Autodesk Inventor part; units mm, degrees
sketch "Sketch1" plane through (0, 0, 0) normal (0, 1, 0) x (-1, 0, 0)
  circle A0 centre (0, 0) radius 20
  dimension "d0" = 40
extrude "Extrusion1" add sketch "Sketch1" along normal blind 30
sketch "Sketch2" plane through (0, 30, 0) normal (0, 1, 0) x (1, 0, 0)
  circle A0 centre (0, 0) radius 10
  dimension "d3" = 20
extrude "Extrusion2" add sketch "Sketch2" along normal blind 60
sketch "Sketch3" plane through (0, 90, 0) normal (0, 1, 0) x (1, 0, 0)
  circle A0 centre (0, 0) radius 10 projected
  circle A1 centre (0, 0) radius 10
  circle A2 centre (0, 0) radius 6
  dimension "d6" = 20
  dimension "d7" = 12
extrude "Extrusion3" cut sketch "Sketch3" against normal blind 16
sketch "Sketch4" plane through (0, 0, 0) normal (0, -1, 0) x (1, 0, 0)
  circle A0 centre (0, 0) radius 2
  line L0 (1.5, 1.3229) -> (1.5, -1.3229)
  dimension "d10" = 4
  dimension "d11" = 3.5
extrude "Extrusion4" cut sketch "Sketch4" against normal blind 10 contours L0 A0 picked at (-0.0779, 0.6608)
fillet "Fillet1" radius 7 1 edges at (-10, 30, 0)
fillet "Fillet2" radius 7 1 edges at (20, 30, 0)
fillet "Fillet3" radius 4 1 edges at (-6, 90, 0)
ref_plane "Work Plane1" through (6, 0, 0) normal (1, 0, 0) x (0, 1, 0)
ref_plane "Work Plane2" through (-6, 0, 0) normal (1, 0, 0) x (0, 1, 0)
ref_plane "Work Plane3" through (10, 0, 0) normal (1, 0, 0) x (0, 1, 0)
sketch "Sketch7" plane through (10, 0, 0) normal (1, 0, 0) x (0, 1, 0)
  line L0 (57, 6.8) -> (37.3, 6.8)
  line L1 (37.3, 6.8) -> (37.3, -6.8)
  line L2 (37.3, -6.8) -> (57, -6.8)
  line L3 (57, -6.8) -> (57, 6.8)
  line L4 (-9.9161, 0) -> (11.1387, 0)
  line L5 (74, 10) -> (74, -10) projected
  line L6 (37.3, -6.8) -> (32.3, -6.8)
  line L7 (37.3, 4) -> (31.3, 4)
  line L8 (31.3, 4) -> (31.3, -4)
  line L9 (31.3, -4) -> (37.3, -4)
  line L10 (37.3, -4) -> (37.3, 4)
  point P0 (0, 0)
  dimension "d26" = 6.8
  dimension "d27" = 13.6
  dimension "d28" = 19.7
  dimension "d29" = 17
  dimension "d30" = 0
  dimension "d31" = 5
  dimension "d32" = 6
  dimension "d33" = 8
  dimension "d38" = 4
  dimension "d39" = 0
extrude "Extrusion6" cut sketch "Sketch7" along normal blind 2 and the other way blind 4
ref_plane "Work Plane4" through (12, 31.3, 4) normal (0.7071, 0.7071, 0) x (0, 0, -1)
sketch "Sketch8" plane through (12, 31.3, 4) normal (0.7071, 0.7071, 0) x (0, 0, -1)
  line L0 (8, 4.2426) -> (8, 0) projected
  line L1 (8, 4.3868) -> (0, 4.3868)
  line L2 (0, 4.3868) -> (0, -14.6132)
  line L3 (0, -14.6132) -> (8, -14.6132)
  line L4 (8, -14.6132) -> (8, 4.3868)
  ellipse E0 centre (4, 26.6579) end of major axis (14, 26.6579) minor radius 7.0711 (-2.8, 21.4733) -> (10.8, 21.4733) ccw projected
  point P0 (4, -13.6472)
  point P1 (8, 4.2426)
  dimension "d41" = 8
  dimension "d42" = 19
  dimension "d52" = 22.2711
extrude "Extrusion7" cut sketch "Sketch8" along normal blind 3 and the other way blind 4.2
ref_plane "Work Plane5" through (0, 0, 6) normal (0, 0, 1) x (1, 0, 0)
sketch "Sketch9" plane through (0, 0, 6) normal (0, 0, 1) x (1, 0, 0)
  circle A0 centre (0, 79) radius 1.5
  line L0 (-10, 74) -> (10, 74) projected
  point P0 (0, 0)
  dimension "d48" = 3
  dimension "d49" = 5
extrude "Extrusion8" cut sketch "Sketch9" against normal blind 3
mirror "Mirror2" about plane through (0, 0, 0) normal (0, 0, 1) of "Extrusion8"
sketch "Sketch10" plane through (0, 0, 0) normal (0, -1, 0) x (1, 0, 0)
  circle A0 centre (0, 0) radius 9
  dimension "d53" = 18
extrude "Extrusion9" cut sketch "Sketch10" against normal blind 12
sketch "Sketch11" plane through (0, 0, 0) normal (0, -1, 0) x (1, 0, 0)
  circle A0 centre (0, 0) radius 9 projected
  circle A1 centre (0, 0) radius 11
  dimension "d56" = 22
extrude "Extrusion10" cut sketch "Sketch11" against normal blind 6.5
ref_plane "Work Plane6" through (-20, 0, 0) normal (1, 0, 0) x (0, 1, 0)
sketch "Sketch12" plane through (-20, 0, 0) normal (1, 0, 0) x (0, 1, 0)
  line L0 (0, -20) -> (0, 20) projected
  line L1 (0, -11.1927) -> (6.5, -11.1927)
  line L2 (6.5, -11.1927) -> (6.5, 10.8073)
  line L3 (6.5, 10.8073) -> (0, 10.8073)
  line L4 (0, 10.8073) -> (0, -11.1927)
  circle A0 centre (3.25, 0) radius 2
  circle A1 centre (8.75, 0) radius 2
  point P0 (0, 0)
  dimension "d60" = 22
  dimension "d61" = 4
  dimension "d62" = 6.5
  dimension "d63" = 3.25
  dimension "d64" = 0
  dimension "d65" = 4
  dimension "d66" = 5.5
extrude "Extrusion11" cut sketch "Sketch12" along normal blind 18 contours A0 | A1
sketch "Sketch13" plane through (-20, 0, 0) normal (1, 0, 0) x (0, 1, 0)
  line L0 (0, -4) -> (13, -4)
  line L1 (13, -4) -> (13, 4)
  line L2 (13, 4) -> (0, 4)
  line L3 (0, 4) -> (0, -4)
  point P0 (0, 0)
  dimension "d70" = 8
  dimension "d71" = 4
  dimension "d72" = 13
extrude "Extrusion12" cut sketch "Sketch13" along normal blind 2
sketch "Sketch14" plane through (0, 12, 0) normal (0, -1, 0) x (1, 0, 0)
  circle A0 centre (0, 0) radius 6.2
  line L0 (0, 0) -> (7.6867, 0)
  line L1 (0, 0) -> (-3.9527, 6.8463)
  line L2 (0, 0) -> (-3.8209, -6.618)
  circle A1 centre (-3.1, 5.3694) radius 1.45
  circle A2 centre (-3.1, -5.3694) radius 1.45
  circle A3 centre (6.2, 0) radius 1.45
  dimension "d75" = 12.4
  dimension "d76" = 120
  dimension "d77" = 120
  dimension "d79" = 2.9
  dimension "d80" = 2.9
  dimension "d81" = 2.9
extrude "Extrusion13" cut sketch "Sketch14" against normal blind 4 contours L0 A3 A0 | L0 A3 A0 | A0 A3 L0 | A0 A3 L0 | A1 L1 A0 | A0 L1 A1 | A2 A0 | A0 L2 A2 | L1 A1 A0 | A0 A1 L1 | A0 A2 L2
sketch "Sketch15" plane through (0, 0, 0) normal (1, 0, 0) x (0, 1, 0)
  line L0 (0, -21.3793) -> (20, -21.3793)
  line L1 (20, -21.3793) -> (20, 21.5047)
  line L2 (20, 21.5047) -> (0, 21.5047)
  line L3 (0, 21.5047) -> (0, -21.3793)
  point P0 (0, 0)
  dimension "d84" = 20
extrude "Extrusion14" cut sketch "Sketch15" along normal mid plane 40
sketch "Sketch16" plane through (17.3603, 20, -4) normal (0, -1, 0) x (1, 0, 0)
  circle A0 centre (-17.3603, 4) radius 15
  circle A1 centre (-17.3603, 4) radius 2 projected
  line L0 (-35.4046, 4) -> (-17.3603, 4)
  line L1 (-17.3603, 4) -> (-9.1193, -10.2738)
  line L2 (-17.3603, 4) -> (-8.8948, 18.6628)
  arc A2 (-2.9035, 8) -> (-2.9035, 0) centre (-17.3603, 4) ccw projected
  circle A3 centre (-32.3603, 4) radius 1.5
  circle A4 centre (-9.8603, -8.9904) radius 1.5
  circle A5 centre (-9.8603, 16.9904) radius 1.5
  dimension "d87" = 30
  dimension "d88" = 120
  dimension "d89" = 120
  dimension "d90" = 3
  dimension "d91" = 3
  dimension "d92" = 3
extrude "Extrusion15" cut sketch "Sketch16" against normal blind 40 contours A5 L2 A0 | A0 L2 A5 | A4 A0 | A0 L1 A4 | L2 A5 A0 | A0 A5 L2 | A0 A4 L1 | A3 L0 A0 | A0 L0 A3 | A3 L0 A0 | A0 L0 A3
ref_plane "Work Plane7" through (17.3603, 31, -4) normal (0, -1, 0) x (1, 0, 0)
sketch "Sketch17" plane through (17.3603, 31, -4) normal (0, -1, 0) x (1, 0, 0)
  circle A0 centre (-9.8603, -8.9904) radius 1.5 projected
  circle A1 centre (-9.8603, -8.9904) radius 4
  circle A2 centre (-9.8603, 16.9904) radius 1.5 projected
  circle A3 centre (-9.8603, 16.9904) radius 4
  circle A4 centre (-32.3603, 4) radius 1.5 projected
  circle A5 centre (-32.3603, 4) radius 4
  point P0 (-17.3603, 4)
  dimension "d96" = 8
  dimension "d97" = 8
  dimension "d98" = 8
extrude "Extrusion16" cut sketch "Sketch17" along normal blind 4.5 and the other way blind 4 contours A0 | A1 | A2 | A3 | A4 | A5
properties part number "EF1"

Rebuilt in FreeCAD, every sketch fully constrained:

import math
import FreeCAD as App
import Part
import Sketcher
Q = App.Units.Quantity


def edges_at(feature, points):
    """Names of the edges that pass closest to the given points."""
    edges = feature.Shape.Edges
    near = lambda p: min(range(len(edges)), key=lambda i: edges[i].distToShape(Part.Vertex(*p))[0])
    return sorted({f"Edge{near(p) + 1}" for p in points})

doc = App.newDocument("Part")
body = doc.addObject("PartDesign::Body", "Body")

# Sketch on XZ plane
sketch1 = body.newObject("Sketcher::SketchObject", "Sketch")
sketch1.AttachmentSupport = (doc.getObject("XZ_Plane"), [""])
sketch1.MapMode = "FlatFace"
sketch1.addGeometry(Part.Circle(App.Vector(0, 0, 0), App.Vector(0, 0, 1), 20), False)
sketch1.addConstraint([
    Sketcher.Constraint("Coincident", 0, 3, -1, 1),
    Sketcher.Constraint("Diameter", 0, Q("40 mm")),
])
pad1 = body.newObject("PartDesign::Pad", "Pad")
pad1.Profile = sketch1
pad1.Length = 30
pad1.Reversed = True

# Sketch on XZ plane
sketch2 = body.newObject("Sketcher::SketchObject", "Sketch001")
sketch2.AttachmentSupport = (doc.getObject("XZ_Plane"), [""])
sketch2.MapMode = "FlatFace"
sketch2.AttachmentOffset = App.Placement(App.Vector(0, 0, -30), App.Rotation())
sketch2.addGeometry(Part.Circle(App.Vector(0, 0, 0), App.Vector(0, 0, 1), 10), False)
sketch2.addConstraint([
    Sketcher.Constraint("Coincident", 0, 3, -1, 1),
    Sketcher.Constraint("Diameter", 0, Q("20 mm")),
])
pad2 = body.newObject("PartDesign::Pad", "Pad001")
pad2.Profile = sketch2
pad2.Length = 60
pad2.Reversed = True

# Sketch on XZ plane
sketch3 = body.newObject("Sketcher::SketchObject", "Sketch002")
sketch3.AttachmentSupport = (doc.getObject("XZ_Plane"), [""])
sketch3.MapMode = "FlatFace"
sketch3.AttachmentOffset = App.Placement(App.Vector(0, 0, -90), App.Rotation())
sketch3.addGeometry([
    Part.Circle(App.Vector(0, 0, 0), App.Vector(0, 0, 1), 10),
    Part.Circle(App.Vector(0, 0, 0), App.Vector(0, 0, 1), 6),
], False)
sketch3.addConstraint([
    Sketcher.Constraint("Coincident", 0, 3, -1, 1),
    Sketcher.Constraint("Coincident", 1, 3, -1, 1),
    Sketcher.Constraint("Diameter", 0, Q("20 mm")),
    Sketcher.Constraint("Diameter", 1, Q("12 mm")),
])
pocket1 = body.newObject("PartDesign::Pocket", "Pocket")
pocket1.Profile = sketch3
pocket1.Length = 16
pocket1.Reversed = True

# Sketch on XZ plane
sketch4 = body.newObject("Sketcher::SketchObject", "Sketch003")
sketch4.AttachmentSupport = (doc.getObject("XZ_Plane"), [""])
sketch4.MapMode = "FlatFace"
sketch4.addGeometry([
    Part.LineSegment(App.Vector(1.5, -1.3, 0), App.Vector(1.5, 1.3, 0)),
    Part.ArcOfCircle(Part.Circle(App.Vector(0, 0, 0), App.Vector(0, 0, 1), 2), math.radians(41), math.radians(319)),
], False)
sketch4.addConstraint([
    Sketcher.Constraint("Coincident", 0, 1, 1, 2),
    Sketcher.Constraint("Coincident", 1, 1, 0, 2),
    Sketcher.Constraint("Vertical", 0),
    Sketcher.Constraint("Coincident", 1, 3, -1, 1),
    Sketcher.Constraint("Radius", 1, Q("2 mm")),
    Sketcher.Constraint("DistanceX", -1, 1, 0, 1, Q("1.5 mm")),
])
pocket2 = body.newObject("PartDesign::Pocket", "Pocket001")
pocket2.Profile = sketch4
pocket2.Length = 10
doc.recompute()

fillet = body.newObject("PartDesign::Fillet", "Fillet")
fillet.Base = (pocket2, edges_at(pocket2, [(-10, 30, 0)]))
fillet.Radius = 7
doc.recompute()

fillet2 = body.newObject("PartDesign::Fillet", "Fillet001")
fillet2.Base = (fillet, edges_at(fillet, [(20, 30, 0)]))
fillet2.Radius = 7
doc.recompute()

fillet3 = body.newObject("PartDesign::Fillet", "Fillet002")
fillet3.Base = (fillet2, edges_at(fillet2, [(-6, 90, 0)]))
fillet3.Radius = 4

# Sketch on YZ plane
sketch5 = body.newObject("Sketcher::SketchObject", "Sketch004")
sketch5.AttachmentSupport = (doc.getObject("YZ_Plane"), [""])
sketch5.MapMode = "FlatFace"
sketch5.AttachmentOffset = App.Placement(App.Vector(0, 0, 10), App.Rotation())
sketch5.addGeometry([
    Part.LineSegment(App.Vector(57, -6.8, 0), App.Vector(57, 6.8, 0)),  # 0
    Part.LineSegment(App.Vector(57, 6.8, 0), App.Vector(37.3, 6.8, 0)),  # 1
    Part.LineSegment(App.Vector(37.3, 6.8, 0), App.Vector(37.3, 4, 0)),  # 2
    Part.LineSegment(App.Vector(37.3, 4, 0), App.Vector(31.3, 4, 0)),  # 3
    Part.LineSegment(App.Vector(31.3, 4, 0), App.Vector(31.3, -4, 0)),  # 4
    Part.LineSegment(App.Vector(31.3, -4, 0), App.Vector(37.3, -4, 0)),  # 5
    Part.LineSegment(App.Vector(37.3, -4, 0), App.Vector(37.3, -6.8, 0)),  # 6
    Part.LineSegment(App.Vector(37.3, -6.8, 0), App.Vector(57, -6.8, 0)),  # 7
], False)
sketch5.addConstraint([
    Sketcher.Constraint("Coincident", 0, 2, 1, 1),
    Sketcher.Constraint("Coincident", 1, 2, 2, 1),
    Sketcher.Constraint("Coincident", 2, 2, 3, 1),
    Sketcher.Constraint("Coincident", 3, 2, 4, 1),
    Sketcher.Constraint("Coincident", 4, 2, 5, 1),
    Sketcher.Constraint("Coincident", 5, 2, 6, 1),
    Sketcher.Constraint("Coincident", 6, 2, 7, 1),
    Sketcher.Constraint("Coincident", 7, 2, 0, 1),
    Sketcher.Constraint("Vertical", 0),
    Sketcher.Constraint("Horizontal", 1),
    Sketcher.Constraint("Vertical", 2),
    Sketcher.Constraint("Horizontal", 3),
    Sketcher.Constraint("Vertical", 4),
    Sketcher.Constraint("Horizontal", 5),
    Sketcher.Constraint("Vertical", 6),
    Sketcher.Constraint("Horizontal", 7),
    Sketcher.Constraint("Symmetric", 2, 2, 5, 2, -1),
    Sketcher.Constraint("Equal", 2, 6),
    Sketcher.Constraint("DistanceX", 3, 2, 3, 1, Q("6 mm")),
    Sketcher.Constraint("DistanceY", 4, 2, 4, 1, Q("8 mm")),
    Sketcher.Constraint("DistanceX", 1, 2, 1, 1, Q("19.7 mm")),
    Sketcher.Constraint("DistanceY", 0, 1, 0, 2, Q("13.6 mm")),
    Sketcher.Constraint("DistanceX", -1, 1, 0, 2, Q("57 mm")),
])
pocket3 = body.newObject("PartDesign::Pocket", "Pocket002")
pocket3.Profile = sketch5
pocket3.Type = "TwoLengths"
pocket3.Length = 2
pocket3.Length2 = 4
pocket3.Reversed = True

# Sketch on an angled plane
sketch6 = body.newObject("Sketcher::SketchObject", "Sketch005")
sketch6.Placement = App.Placement(App.Vector(12, 31.3, 4), App.Rotation(App.Vector(0, 0, -1), App.Vector(-0.707106781, 0.707106781, 0), App.Vector(0.707106781, 0.707106781, 0), "ZXY"))
sketch6.addGeometry([
    Part.LineSegment(App.Vector(8, -15, 0), App.Vector(8, 4, 0)),
    Part.LineSegment(App.Vector(8, 4, 0), App.Vector(0, 4, 0)),
    Part.LineSegment(App.Vector(0, 4, 0), App.Vector(0, -15, 0)),
    Part.LineSegment(App.Vector(0, -15, 0), App.Vector(8, -15, 0)),
], False)
sketch6.addConstraint([
    Sketcher.Constraint("Coincident", 0, 2, 1, 1),
    Sketcher.Constraint("Coincident", 1, 2, 2, 1),
    Sketcher.Constraint("Coincident", 2, 2, 3, 1),
    Sketcher.Constraint("Coincident", 3, 2, 0, 1),
    Sketcher.Constraint("Vertical", 0),
    Sketcher.Constraint("Horizontal", 1),
    Sketcher.Constraint("Vertical", 2),
    Sketcher.Constraint("Horizontal", 3),
    Sketcher.Constraint("PointOnObject", 1, 2, -2),
    Sketcher.Constraint("DistanceX", 1, 2, 1, 1, Q("8 mm")),
    Sketcher.Constraint("DistanceY", 0, 1, 0, 2, Q("19 mm")),
    Sketcher.Constraint("DistanceY", -1, 1, 0, 2, Q("4.3868 mm")),
])
pocket4 = body.newObject("PartDesign::Pocket", "Pocket003")
pocket4.Profile = sketch6
pocket4.Type = "TwoLengths"
pocket4.Length = 3
pocket4.Length2 = 4.2
pocket4.Reversed = True

# Sketch on XY plane
sketch7 = body.newObject("Sketcher::SketchObject", "Sketch006")
sketch7.AttachmentSupport = (doc.getObject("XY_Plane"), [""])
sketch7.MapMode = "FlatFace"
sketch7.AttachmentOffset = App.Placement(App.Vector(0, 0, 6), App.Rotation())
sketch7.addGeometry(Part.Circle(App.Vector(0, 79, 0), App.Vector(0, 0, 1), 1.5), False)
sketch7.addConstraint([
    Sketcher.Constraint("PointOnObject", 0, 3, -2),
    Sketcher.Constraint("Diameter", 0, Q("3 mm")),
    Sketcher.Constraint("DistanceY", -1, 1, 0, 3, Q("79 mm")),
])
pocket5 = body.newObject("PartDesign::Pocket", "Pocket004")
pocket5.Profile = sketch7
pocket5.Length = 3
doc.recompute()

mirrored = body.newObject("PartDesign::Mirrored", "Mirrored")
mirrored.Originals = [pocket5]
mirrored.MirrorPlane = (doc.getObject("XY_Plane"), [""])
body.Tip = mirrored

# Sketch on XZ plane
sketch8 = body.newObject("Sketcher::SketchObject", "Sketch007")
sketch8.AttachmentSupport = (doc.getObject("XZ_Plane"), [""])
sketch8.MapMode = "FlatFace"
sketch8.addGeometry(Part.Circle(App.Vector(0, 0, 0), App.Vector(0, 0, 1), 9), False)
sketch8.addConstraint([
    Sketcher.Constraint("Coincident", 0, 3, -1, 1),
    Sketcher.Constraint("Diameter", 0, Q("18 mm")),
])
pocket6 = body.newObject("PartDesign::Pocket", "Pocket005")
pocket6.Profile = sketch8
pocket6.Length = 12

# Sketch on XZ plane
sketch9 = body.newObject("Sketcher::SketchObject", "Sketch008")
sketch9.AttachmentSupport = (doc.getObject("XZ_Plane"), [""])
sketch9.MapMode = "FlatFace"
sketch9.addGeometry([
    Part.Circle(App.Vector(0, 0, 0), App.Vector(0, 0, 1), 11),
    Part.Circle(App.Vector(0, 0, 0), App.Vector(0, 0, 1), 9),
], False)
sketch9.addConstraint([
    Sketcher.Constraint("Coincident", 0, 3, -1, 1),
    Sketcher.Constraint("Coincident", 1, 3, -1, 1),
    Sketcher.Constraint("Diameter", 0, Q("22 mm")),
    Sketcher.Constraint("Diameter", 1, Q("18 mm")),
])
pocket7 = body.newObject("PartDesign::Pocket", "Pocket006")
pocket7.Profile = sketch9
pocket7.Length = 6.5

# Sketch on YZ plane
sketch10 = body.newObject("Sketcher::SketchObject", "Sketch009")
sketch10.AttachmentSupport = (doc.getObject("YZ_Plane"), [""])
sketch10.MapMode = "FlatFace"
sketch10.AttachmentOffset = App.Placement(App.Vector(0, 0, -20), App.Rotation())
sketch10.addGeometry([
    Part.Circle(App.Vector(3.2, 0, 0), App.Vector(0, 0, 1), 2),
    Part.Circle(App.Vector(8.8, 0, 0), App.Vector(0, 0, 1), 2),
], False)
sketch10.addConstraint([
    Sketcher.Constraint("Equal", 0, 1),
    Sketcher.Constraint("PointOnObject", 0, 3, -1),
    Sketcher.Constraint("PointOnObject", 1, 3, -1),
    Sketcher.Constraint("Diameter", 0, Q("4 mm")),
    Sketcher.Constraint("DistanceX", 0, 3, 1, 3, Q("5.5 mm")),
    Sketcher.Constraint("DistanceX", -1, 1, 0, 3, Q("3.25 mm")),
])
pocket8 = body.newObject("PartDesign::Pocket", "Pocket007")
pocket8.Profile = sketch10
pocket8.Length = 18
pocket8.Reversed = True

# Sketch on YZ plane
sketch11 = body.newObject("Sketcher::SketchObject", "Sketch010")
sketch11.AttachmentSupport = (doc.getObject("YZ_Plane"), [""])
sketch11.MapMode = "FlatFace"
sketch11.AttachmentOffset = App.Placement(App.Vector(0, 0, -20), App.Rotation())
sketch11.addGeometry([
    Part.LineSegment(App.Vector(0, 4, 0), App.Vector(0, -4, 0)),
    Part.LineSegment(App.Vector(0, -4, 0), App.Vector(13, -4, 0)),
    Part.LineSegment(App.Vector(13, -4, 0), App.Vector(13, 4, 0)),
    Part.LineSegment(App.Vector(13, 4, 0), App.Vector(0, 4, 0)),
], False)
sketch11.addConstraint([
    Sketcher.Constraint("Coincident", 0, 2, 1, 1),
    Sketcher.Constraint("Coincident", 1, 2, 2, 1),
    Sketcher.Constraint("Coincident", 2, 2, 3, 1),
    Sketcher.Constraint("Coincident", 3, 2, 0, 1),
    Sketcher.Constraint("Vertical", 0),
    Sketcher.Constraint("Horizontal", 1),
    Sketcher.Constraint("Vertical", 2),
    Sketcher.Constraint("Horizontal", 3),
    Sketcher.Constraint("Symmetric", 0, 2, 3, 2, -1, 1),
    Sketcher.Constraint("DistanceX", 1, 1, 1, 2, Q("13 mm")),
    Sketcher.Constraint("DistanceY", 0, 2, 0, 1, Q("8 mm")),
])
pocket9 = body.newObject("PartDesign::Pocket", "Pocket008")
pocket9.Profile = sketch11
pocket9.Length = 2
pocket9.Reversed = True

# Sketch on XZ plane
sketch12 = body.newObject("Sketcher::SketchObject", "Sketch011")
sketch12.AttachmentSupport = (doc.getObject("XZ_Plane"), [""])
sketch12.MapMode = "FlatFace"
sketch12.AttachmentOffset = App.Placement(App.Vector(0, 0, -12), App.Rotation())
sketch12.addGeometry([
    Part.Circle(App.Vector(6.2, 0, 0), App.Vector(0, 0, 1), 1.4),
    Part.Circle(App.Vector(-3.1, 5.4, 0), App.Vector(0, 0, 1), 1.4),
    Part.Circle(App.Vector(-3.1, -5.4, 0), App.Vector(0, 0, 1), 1.4),
], False)
sketch12.addConstraint([
    Sketcher.Constraint("Equal", 0, 1),
    Sketcher.Constraint("Equal", 1, 2),
    Sketcher.Constraint("Symmetric", 1, 3, 2, 3, -1),
    Sketcher.Constraint("PointOnObject", 0, 3, -1),
    Sketcher.Constraint("Diameter", 0, Q("2.9 mm")),
    Sketcher.Constraint("DistanceX", -1, 1, 0, 3, Q("6.2 mm")),
    Sketcher.Constraint("DistanceX", 1, 3, -1, 1, Q("3.1 mm")),
    Sketcher.Constraint("DistanceY", -1, 1, 1, 3, Q("5.3694 mm")),
])
pocket10 = body.newObject("PartDesign::Pocket", "Pocket009")
pocket10.Profile = sketch12
pocket10.Length = 4

# Sketch on YZ plane
sketch13 = body.newObject("Sketcher::SketchObject", "Sketch012")
sketch13.AttachmentSupport = (doc.getObject("YZ_Plane"), [""])
sketch13.MapMode = "FlatFace"
sketch13.addGeometry([
    Part.LineSegment(App.Vector(0, 22, 0), App.Vector(0, -21, 0)),
    Part.LineSegment(App.Vector(0, -21, 0), App.Vector(20, -21, 0)),
    Part.LineSegment(App.Vector(20, -21, 0), App.Vector(20, 22, 0)),
    Part.LineSegment(App.Vector(20, 22, 0), App.Vector(0, 22, 0)),
], False)
sketch13.addConstraint([
    Sketcher.Constraint("Coincident", 0, 2, 1, 1),
    Sketcher.Constraint("Coincident", 1, 2, 2, 1),
    Sketcher.Constraint("Coincident", 2, 2, 3, 1),
    Sketcher.Constraint("Coincident", 3, 2, 0, 1),
    Sketcher.Constraint("Vertical", 0),
    Sketcher.Constraint("Horizontal", 1),
    Sketcher.Constraint("Vertical", 2),
    Sketcher.Constraint("Horizontal", 3),
    Sketcher.Constraint("PointOnObject", 0, 2, -2),
    Sketcher.Constraint("DistanceX", 1, 1, 1, 2, Q("20 mm")),
    Sketcher.Constraint("DistanceY", 0, 2, 0, 1, Q("42.884 mm")),
    Sketcher.Constraint("DistanceY", 0, 2, -1, 1, Q("21.3793 mm")),
])
pocket11 = body.newObject("PartDesign::Pocket", "Pocket010")
pocket11.Profile = sketch13
pocket11.Length = 40
pocket11.Midplane = True

# Sketch on XZ plane
sketch14 = body.newObject("Sketcher::SketchObject", "Sketch013")
sketch14.AttachmentSupport = (doc.getObject("XZ_Plane"), [""])
sketch14.MapMode = "FlatFace"
sketch14.AttachmentOffset = App.Placement(App.Vector(0, 0, -20), App.Rotation())
sketch14.addGeometry([
    Part.Circle(App.Vector(7.5, 13, 0), App.Vector(0, 0, 1), 1.5),
    Part.Circle(App.Vector(7.5, -13, 0), App.Vector(0, 0, 1), 1.5),
    Part.Circle(App.Vector(-15, 0, 0), App.Vector(0, 0, 1), 1.5),
], False)
sketch14.addConstraint([
    Sketcher.Constraint("Equal", 0, 1),
    Sketcher.Constraint("Equal", 1, 2),
    Sketcher.Constraint("Symmetric", 0, 3, 1, 3, -1),
    Sketcher.Constraint("PointOnObject", 2, 3, -1),
    Sketcher.Constraint("Diameter", 0, Q("3 mm")),
    Sketcher.Constraint("DistanceX", 2, 3, -1, 1, Q("15 mm")),
    Sketcher.Constraint("DistanceX", -1, 1, 0, 3, Q("7.5 mm")),
    Sketcher.Constraint("DistanceY", -1, 1, 0, 3, Q("12.9904 mm")),
])
pocket12 = body.newObject("PartDesign::Pocket", "Pocket011")
pocket12.Profile = sketch14
pocket12.Length = 40

# Sketch on XZ plane
sketch15 = body.newObject("Sketcher::SketchObject", "Sketch014")
sketch15.AttachmentSupport = (doc.getObject("XZ_Plane"), [""])
sketch15.MapMode = "FlatFace"
sketch15.AttachmentOffset = App.Placement(App.Vector(0, 0, -31), App.Rotation())
sketch15.addGeometry([
    Part.Circle(App.Vector(7.5, -13, 0), App.Vector(0, 0, 1), 4),
    Part.Circle(App.Vector(7.5, 13, 0), App.Vector(0, 0, 1), 4),
    Part.Circle(App.Vector(-15, 0, 0), App.Vector(0, 0, 1), 4),
], False)
sketch15.addConstraint([
    Sketcher.Constraint("Equal", 0, 1),
    Sketcher.Constraint("Equal", 1, 2),
    Sketcher.Constraint("Symmetric", 0, 3, 1, 3, -1),
    Sketcher.Constraint("PointOnObject", 2, 3, -1),
    Sketcher.Constraint("Diameter", 0, Q("8 mm")),
    Sketcher.Constraint("DistanceX", 2, 3, -1, 1, Q("15 mm")),
    Sketcher.Constraint("DistanceX", -1, 1, 0, 3, Q("7.5 mm")),
    Sketcher.Constraint("DistanceY", 0, 3, -1, 1, Q("12.9904 mm")),
])
pocket13 = body.newObject("PartDesign::Pocket", "Pocket012")
pocket13.Profile = sketch15
pocket13.Type = "TwoLengths"
pocket13.Length = 4.5
pocket13.Length2 = 4
pocket13.Reversed = True

doc.recompute()
